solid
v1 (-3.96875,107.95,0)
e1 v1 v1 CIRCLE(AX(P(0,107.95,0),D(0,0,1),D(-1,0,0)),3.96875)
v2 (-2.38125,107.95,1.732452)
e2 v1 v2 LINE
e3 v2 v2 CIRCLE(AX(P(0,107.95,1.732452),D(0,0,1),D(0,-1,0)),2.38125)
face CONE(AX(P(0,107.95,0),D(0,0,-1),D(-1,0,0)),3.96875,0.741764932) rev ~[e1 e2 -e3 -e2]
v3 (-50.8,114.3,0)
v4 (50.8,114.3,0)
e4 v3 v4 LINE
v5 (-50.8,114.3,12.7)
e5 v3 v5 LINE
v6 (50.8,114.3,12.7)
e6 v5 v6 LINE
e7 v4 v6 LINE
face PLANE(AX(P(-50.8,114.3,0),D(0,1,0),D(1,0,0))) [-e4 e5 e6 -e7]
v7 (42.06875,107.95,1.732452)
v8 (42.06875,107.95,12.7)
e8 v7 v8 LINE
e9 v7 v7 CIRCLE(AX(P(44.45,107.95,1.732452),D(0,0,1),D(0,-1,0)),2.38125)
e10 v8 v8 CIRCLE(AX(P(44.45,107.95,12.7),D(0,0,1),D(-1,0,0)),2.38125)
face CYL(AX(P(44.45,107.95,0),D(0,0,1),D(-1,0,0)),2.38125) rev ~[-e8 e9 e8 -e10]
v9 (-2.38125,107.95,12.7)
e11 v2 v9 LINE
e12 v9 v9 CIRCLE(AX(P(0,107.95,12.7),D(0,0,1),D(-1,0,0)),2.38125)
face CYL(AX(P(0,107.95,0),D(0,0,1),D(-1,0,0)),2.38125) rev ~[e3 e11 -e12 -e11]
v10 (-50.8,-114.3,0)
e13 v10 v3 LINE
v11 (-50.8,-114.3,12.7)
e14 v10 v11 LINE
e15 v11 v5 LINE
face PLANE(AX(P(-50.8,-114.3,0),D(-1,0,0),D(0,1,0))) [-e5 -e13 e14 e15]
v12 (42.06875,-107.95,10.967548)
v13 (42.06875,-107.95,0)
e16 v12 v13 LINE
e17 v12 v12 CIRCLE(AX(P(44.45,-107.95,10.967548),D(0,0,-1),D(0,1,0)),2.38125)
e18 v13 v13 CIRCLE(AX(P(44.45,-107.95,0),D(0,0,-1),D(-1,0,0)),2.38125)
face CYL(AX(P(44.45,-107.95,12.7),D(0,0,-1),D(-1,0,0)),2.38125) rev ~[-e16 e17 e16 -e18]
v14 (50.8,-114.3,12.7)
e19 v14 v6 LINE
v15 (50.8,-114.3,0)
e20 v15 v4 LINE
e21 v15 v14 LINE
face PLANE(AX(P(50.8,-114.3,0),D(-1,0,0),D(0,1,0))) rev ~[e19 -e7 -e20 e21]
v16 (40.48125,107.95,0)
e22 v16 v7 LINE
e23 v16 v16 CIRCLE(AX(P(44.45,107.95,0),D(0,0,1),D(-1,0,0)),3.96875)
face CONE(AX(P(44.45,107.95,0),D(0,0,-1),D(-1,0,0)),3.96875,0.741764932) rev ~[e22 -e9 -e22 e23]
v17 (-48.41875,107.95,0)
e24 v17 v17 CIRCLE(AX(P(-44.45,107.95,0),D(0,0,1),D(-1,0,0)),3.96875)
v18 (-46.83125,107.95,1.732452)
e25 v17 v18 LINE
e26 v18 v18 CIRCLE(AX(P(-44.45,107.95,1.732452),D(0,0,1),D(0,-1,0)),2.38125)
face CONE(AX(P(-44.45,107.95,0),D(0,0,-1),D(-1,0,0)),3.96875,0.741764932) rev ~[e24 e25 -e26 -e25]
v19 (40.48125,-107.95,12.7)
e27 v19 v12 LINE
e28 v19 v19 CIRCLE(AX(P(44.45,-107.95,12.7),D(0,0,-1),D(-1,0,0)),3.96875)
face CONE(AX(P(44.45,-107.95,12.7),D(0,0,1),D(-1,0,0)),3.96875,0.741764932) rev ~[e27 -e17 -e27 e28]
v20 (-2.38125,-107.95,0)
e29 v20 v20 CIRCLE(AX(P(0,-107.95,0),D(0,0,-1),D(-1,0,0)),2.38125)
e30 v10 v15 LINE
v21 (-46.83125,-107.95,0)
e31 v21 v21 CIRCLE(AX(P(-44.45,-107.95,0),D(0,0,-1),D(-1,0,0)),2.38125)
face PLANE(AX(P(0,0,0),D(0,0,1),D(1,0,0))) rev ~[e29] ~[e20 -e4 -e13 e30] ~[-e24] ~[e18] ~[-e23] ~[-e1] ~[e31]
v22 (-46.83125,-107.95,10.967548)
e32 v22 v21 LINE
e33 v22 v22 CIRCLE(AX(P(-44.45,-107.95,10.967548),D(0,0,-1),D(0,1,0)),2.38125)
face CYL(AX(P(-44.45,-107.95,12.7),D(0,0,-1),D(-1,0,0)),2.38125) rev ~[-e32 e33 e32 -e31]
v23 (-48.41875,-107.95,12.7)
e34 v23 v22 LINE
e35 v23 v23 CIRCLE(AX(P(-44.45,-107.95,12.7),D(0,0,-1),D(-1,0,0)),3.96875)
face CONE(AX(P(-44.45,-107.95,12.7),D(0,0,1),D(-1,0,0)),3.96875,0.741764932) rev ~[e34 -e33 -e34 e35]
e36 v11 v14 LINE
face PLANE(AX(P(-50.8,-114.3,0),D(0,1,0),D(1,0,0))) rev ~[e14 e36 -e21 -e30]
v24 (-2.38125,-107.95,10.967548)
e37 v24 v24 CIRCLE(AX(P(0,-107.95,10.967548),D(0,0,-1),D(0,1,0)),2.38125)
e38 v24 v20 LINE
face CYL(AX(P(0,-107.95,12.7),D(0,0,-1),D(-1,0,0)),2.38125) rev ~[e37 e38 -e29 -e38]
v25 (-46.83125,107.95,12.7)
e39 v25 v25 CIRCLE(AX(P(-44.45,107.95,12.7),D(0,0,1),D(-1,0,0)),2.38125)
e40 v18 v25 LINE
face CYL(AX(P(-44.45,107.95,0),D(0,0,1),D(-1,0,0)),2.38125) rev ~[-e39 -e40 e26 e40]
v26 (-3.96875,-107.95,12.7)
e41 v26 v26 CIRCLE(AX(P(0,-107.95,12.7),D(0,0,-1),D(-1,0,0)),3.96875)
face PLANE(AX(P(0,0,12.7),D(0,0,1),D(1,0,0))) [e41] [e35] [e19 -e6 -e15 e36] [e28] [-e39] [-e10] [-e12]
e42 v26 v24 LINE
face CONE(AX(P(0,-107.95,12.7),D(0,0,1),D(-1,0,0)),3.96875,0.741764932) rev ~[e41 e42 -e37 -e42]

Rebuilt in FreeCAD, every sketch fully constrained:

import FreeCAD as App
import Part
import Sketcher
from FreeCAD import Vector
Q = App.Units.Quantity


def add_polygon(sketch, points):
    """Adds a closed chain of lines whose ends are joined by coincident constraints."""
    first, n = sketch.GeometryCount, len(points)
    for a, b in zip(points, points[1:] + points[:1]):
        sketch.addGeometry(Part.LineSegment(App.Vector(*a, 0), App.Vector(*b, 0)), False)
    for i in range(n):
        sketch.addConstraint(Sketcher.Constraint("Coincident", first + i, 2, first + (i + 1) % n, 1))

doc = App.newDocument("Part")
body = doc.addObject("PartDesign::Body", "Body")

sketch1 = body.newObject("Sketcher::SketchObject", "Sketch")
sketch1.AttachmentSupport = (doc.getObject("XY_Plane"), [""])
sketch1.MapMode = "FlatFace"
add_polygon(sketch1, [(-51, 114), (-51, -114), (51, -114), (51, 114)])
sketch1.addConstraint([
    Sketcher.Constraint("Vertical", 0),
    Sketcher.Constraint("Horizontal", 1),
    Sketcher.Constraint("Vertical", 2),
    Sketcher.Constraint("Horizontal", 3),
    Sketcher.Constraint("Symmetric", 0, 2, 2, 2, -1, 1),
    Sketcher.Constraint("DistanceX", 1, 1, 1, 2, Q("4 in")),
    Sketcher.Constraint("DistanceY", 0, 2, 0, 1, Q("9 in")),
])
pad1 = body.newObject("PartDesign::Pad", "Pad")
pad1.Profile = sketch1
pad1.Length = Q("0.5 in")

sketch2 = body.newObject("Sketcher::SketchObject", "Sketch001")
sketch2.AttachmentSupport = (doc.getObject("XY_Plane"), [""])
sketch2.MapMode = "FlatFace"
sketch2.AttachmentOffset = App.Placement(Vector(0, 0, 0.5 * 25.4), App.Rotation())
sketch2.addGeometry([
    Part.Circle(Vector(-44.5, -108, 0), Vector(0, 0, 1), 2.4),
    Part.Circle(Vector(0, -108, 0), Vector(0, 0, 1), 2.4),
    Part.Circle(Vector(44.5, -108, 0), Vector(0, 0, 1), 2.4),
], False)
sketch2.addConstraint([
    Sketcher.Constraint("Equal", 0, 1),
    Sketcher.Constraint("Equal", 1, 2),
    Sketcher.Constraint("Symmetric", 0, 3, 2, 3, -2),
    Sketcher.Constraint("PointOnObject", 1, 3, -2),
    Sketcher.Constraint("Horizontal", 0, 3, 1, 3),
    Sketcher.Constraint("Diameter", 0, Q("0.1875 in")),
    Sketcher.Constraint("DistanceX", 0, 3, 2, 3, Q("3.5 in")),
    Sketcher.Constraint("DistanceY", 0, 3, -1, 1, Q("4.25 in")),
])
doc.recompute()
hole = body.newObject("PartDesign::Hole", "Hole")
hole.Profile = sketch2
hole.ThreadType = "None"
hole.Diameter = Q("0.1875 in")
hole.DepthType = "ThroughAll"
hole.HoleCutType = "Countersink"
hole.HoleCutDiameter = Q("0.3125 in")
hole.HoleCutCountersinkAngle = 85

sketch3 = body.newObject("Sketcher::SketchObject", "Sketch002")
sketch3.AttachmentSupport = (doc.getObject("XY_Plane"), [""])
sketch3.MapMode = "FlatFace"
sketch3.addGeometry([
    Part.Circle(Vector(44.5, 108, 0), Vector(0, 0, 1), 2.4),
    Part.Circle(Vector(0, 108, 0), Vector(0, 0, 1), 2.4),
    Part.Circle(Vector(-44.5, 108, 0), Vector(0, 0, 1), 2.4),
], False)
sketch3.addConstraint([
    Sketcher.Constraint("Equal", 0, 1),
    Sketcher.Constraint("Equal", 1, 2),
    Sketcher.Constraint("Symmetric", 0, 3, 2, 3, -2),
    Sketcher.Constraint("PointOnObject", 1, 3, -2),
    Sketcher.Constraint("Horizontal", 0, 3, 1, 3),
    Sketcher.Constraint("Diameter", 0, Q("0.1875 in")),
    Sketcher.Constraint("DistanceX", 2, 3, 0, 3, Q("3.5 in")),
    Sketcher.Constraint("DistanceY", -1, 1, 0, 3, Q("4.25 in")),
])
doc.recompute()
hole2 = body.newObject("PartDesign::Hole", "Hole001")
hole2.Profile = sketch3
hole2.ThreadType = "None"
hole2.Diameter = Q("0.1875 in")
hole2.DepthType = "ThroughAll"
hole2.HoleCutType = "Countersink"
hole2.HoleCutDiameter = Q("0.3125 in")
hole2.HoleCutCountersinkAngle = 85
hole2.Reversed = True

doc.recompute()
